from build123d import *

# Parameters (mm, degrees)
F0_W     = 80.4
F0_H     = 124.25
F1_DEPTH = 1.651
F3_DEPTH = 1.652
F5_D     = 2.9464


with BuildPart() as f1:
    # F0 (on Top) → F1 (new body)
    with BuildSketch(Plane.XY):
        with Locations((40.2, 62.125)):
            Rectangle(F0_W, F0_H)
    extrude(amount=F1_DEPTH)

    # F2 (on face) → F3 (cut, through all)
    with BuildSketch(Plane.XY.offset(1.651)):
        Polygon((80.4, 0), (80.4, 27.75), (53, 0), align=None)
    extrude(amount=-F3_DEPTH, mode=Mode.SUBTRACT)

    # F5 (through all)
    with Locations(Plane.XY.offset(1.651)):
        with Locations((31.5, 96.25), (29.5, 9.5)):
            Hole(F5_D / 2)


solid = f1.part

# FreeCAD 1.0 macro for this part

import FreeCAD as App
import Part
import Sketcher


def add_polygon(sketch, points):
    """Adds a closed chain of lines whose ends are joined by coincident constraints."""
    first, n = sketch.GeometryCount, len(points)
    for a, b in zip(points, points[1:] + points[:1]):
        sketch.addGeometry(Part.LineSegment(App.Vector(*a, 0), App.Vector(*b, 0)), False)
    for i in range(n):
        sketch.addConstraint(Sketcher.Constraint("Coincident", first + i, 2, first + (i + 1) % n, 1))

doc = App.newDocument("Part")
body = doc.addObject("PartDesign::Body", "Body")

# Sketch on XY plane
sketch1 = body.newObject("Sketcher::SketchObject", "Sketch")
sketch1.AttachmentSupport = (doc.getObject("XY_Plane"), [""])
sketch1.MapMode = "FlatFace"
add_polygon(sketch1, [(0, 124.25), (0, 0), (80.4, 0), (80.4, 124.25)])  # lines 0-3
sketch1.addConstraint([
    Sketcher.Constraint("Vertical", 0),
    Sketcher.Constraint("Horizontal", 1),
    Sketcher.Constraint("Vertical", 2),
    Sketcher.Constraint("Horizontal", 3),
    Sketcher.Constraint("Coincident", 0, 2, -1, 1),
    Sketcher.Constraint("DistanceX", 1, 1, 1, 2, 80.4),
    Sketcher.Constraint("DistanceY", 0, 2, 0, 1, 124.25),
])
pad1 = body.newObject("PartDesign::Pad", "Pad")
pad1.Profile = sketch1
pad1.Length = 1.651

# Sketch on XY plane
sketch2 = body.newObject("Sketcher::SketchObject", "Sketch001")
sketch2.AttachmentSupport = (doc.getObject("XY_Plane"), [""])
sketch2.MapMode = "FlatFace"
sketch2.AttachmentOffset = App.Placement(App.Vector(0, 0, 1.651), App.Rotation())
add_polygon(sketch2, [(80.4, 0), (80.4, 27.75), (53, 0)])  # lines 0-2
sketch2.addConstraint([
    Sketcher.Constraint("Vertical", 0),
    Sketcher.Constraint("Horizontal", 2),
    Sketcher.Constraint("PointOnObject", 1, 2, -1),
    Sketcher.Constraint("DistanceX", 2, 1, 2, 2, 27.4),
    Sketcher.Constraint("DistanceX", -1, 1, 1, 2, 53.0),
    Sketcher.Constraint("DistanceY", 0, 1, 0, 2, 27.75),
])
pocket1 = body.newObject("PartDesign::Pocket", "Pocket")
pocket1.Profile = sketch2
pocket1.Type = "ThroughAll"

# Sketch on XY plane
sketch3 = body.newObject("Sketcher::SketchObject", "Sketch002")
sketch3.AttachmentSupport = (doc.getObject("XY_Plane"), [""])
sketch3.MapMode = "FlatFace"
sketch3.AttachmentOffset = App.Placement(App.Vector(0, 0, 1.651), App.Rotation())
sketch3.addGeometry([
    Part.Circle(App.Vector(31.5, 96.25, 0), App.Vector(0, 0, 1), 1.4732),
    Part.Circle(App.Vector(29.5, 9.5, 0), App.Vector(0, 0, 1), 1.4732),
], False)
sketch3.addConstraint([
    Sketcher.Constraint("Equal", 0, 1),
    Sketcher.Constraint("DistanceX", 1, 3, 0, 3, 2.0),
    Sketcher.Constraint("Diameter", 0, 2.9464),
    Sketcher.Constraint("DistanceX", -1, 1, 0, 3, 31.5),
    Sketcher.Constraint("DistanceY", -1, 1, 1, 3, 9.5),
    Sketcher.Constraint("DistanceY", -1, 1, 0, 3, 96.25),
])
doc.recompute()
hole = body.newObject("PartDesign::Hole", "Hole")
hole.Profile = sketch3
hole.ThreadType = "None"
hole.Diameter = 2.9464
hole.DepthType = "ThroughAll"

doc.recompute()
